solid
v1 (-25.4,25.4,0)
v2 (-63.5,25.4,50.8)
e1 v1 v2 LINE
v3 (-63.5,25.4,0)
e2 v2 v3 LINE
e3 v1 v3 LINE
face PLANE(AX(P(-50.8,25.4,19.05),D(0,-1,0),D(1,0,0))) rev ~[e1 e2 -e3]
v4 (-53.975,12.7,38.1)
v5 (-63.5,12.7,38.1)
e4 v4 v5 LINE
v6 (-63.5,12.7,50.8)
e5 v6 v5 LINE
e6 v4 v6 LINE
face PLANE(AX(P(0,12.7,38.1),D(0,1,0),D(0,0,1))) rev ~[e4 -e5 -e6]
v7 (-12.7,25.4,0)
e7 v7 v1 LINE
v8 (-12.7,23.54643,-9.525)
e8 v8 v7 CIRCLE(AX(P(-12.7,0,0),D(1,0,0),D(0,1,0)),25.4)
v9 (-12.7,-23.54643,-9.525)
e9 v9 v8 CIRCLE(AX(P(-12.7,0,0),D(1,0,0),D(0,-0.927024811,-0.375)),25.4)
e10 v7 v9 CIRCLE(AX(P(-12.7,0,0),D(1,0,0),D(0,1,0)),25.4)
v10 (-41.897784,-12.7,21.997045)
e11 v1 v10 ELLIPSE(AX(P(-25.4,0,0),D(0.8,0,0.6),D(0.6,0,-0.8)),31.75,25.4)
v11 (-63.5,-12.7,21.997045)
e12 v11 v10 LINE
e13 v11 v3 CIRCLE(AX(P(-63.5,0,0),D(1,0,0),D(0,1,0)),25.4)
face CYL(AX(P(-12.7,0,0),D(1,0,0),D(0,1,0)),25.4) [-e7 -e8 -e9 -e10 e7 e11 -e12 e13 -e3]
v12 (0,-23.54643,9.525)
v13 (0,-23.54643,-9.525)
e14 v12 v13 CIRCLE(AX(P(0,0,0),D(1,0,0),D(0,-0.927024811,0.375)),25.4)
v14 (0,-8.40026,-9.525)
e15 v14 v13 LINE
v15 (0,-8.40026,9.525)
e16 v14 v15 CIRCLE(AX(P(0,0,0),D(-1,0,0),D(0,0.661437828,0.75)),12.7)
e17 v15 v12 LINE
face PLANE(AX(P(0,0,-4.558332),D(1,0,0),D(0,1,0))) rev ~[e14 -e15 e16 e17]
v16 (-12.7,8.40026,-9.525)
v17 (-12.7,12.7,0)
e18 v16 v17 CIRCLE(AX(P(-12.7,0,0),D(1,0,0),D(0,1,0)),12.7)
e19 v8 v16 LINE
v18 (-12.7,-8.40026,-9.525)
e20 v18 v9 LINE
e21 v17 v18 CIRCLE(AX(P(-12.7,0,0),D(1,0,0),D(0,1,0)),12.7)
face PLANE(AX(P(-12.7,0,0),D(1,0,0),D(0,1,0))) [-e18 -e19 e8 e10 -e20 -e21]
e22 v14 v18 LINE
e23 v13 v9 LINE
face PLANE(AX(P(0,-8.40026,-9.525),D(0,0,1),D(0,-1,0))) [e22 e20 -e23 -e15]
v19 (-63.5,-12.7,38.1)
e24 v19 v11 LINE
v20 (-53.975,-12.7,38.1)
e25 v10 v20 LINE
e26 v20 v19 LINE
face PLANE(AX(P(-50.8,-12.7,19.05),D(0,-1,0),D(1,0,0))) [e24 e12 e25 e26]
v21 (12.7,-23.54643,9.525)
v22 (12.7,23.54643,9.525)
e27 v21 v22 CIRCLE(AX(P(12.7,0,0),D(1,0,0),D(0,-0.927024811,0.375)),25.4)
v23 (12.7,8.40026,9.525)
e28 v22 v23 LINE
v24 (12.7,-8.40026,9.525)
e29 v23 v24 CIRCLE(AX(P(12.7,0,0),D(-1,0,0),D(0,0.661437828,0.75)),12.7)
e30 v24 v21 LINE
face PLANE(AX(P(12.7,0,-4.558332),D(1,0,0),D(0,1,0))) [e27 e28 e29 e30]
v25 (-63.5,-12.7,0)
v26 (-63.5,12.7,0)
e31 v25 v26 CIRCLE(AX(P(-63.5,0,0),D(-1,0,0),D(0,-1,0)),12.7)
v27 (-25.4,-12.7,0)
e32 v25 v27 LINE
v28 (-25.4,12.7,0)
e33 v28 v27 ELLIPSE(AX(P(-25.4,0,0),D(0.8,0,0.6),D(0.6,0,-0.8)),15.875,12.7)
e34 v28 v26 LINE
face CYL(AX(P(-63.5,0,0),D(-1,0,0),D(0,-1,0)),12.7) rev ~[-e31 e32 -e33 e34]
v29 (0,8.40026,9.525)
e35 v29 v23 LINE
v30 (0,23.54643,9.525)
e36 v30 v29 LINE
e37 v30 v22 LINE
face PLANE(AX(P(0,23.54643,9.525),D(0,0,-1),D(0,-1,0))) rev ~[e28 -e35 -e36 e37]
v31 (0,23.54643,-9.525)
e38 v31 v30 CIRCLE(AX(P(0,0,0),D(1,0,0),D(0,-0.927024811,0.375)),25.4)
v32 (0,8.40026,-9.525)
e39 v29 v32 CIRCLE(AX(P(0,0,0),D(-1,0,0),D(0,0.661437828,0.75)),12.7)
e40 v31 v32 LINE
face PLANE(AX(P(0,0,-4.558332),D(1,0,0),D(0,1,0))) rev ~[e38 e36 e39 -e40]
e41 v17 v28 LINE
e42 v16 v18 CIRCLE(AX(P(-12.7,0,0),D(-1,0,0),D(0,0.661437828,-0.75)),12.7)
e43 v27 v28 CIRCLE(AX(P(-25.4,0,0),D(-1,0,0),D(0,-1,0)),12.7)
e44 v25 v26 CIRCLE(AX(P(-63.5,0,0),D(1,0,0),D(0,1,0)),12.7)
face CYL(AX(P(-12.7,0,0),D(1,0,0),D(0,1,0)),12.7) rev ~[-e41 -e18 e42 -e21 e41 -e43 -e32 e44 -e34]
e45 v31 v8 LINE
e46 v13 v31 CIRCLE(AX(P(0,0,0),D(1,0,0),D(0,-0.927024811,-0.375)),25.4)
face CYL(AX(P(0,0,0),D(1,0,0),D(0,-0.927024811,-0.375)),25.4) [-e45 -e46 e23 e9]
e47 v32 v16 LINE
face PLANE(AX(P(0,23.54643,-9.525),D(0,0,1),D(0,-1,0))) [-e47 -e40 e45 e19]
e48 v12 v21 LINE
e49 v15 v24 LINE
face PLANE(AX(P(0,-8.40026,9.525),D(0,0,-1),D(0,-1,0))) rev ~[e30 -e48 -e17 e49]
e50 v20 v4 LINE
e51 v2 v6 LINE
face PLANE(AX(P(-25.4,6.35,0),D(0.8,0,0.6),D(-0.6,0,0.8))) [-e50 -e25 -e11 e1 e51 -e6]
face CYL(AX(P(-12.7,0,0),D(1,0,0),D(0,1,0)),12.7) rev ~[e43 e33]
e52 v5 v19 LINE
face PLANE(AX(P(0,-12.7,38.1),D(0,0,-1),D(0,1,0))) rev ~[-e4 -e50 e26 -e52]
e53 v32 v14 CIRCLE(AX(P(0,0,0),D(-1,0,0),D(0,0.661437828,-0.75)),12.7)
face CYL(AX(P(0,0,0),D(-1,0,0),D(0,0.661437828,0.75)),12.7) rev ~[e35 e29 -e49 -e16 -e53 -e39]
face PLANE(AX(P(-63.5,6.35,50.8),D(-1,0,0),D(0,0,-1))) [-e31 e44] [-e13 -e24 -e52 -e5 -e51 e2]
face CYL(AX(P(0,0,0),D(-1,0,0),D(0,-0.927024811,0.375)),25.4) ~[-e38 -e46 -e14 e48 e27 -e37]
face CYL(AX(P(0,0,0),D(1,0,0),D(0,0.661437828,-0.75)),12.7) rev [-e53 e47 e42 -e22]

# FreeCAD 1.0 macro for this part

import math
import FreeCAD as App
import Part
import Sketcher

V = App.Vector
Q = App.Units.Quantity


def add_polygon(sketch, points):
    """Adds a closed chain of lines whose ends are joined by coincident constraints."""
    first, n = sketch.GeometryCount, len(points)
    for a, b in zip(points, points[1:] + points[:1]):
        sketch.addGeometry(Part.LineSegment(App.Vector(*a, 0), App.Vector(*b, 0)), False)
    for i in range(n):
        sketch.addConstraint(Sketcher.Constraint("Coincident", first + i, 2, first + (i + 1) % n, 1))

doc = App.newDocument("Part")
body = doc.addObject("PartDesign::Body", "Body")

# Sketch on YZ plane
sketch1 = body.newObject("Sketcher::SketchObject", "Sketch")
sketch1.AttachmentSupport = (doc.getObject("YZ_Plane"), [""])
sketch1.MapMode = "FlatFace"
sketch1.addGeometry(Part.ArcOfCircle(Part.Circle(V(0, 0, 0), V(0, 0, 1), 12.7), math.radians(131.409622), math.radians(408.590378)), False)
sketch1.addGeometry(Part.LineSegment(V(-8.40026, 9.525, 0), V(-23.54643, 9.525, 0)), False)
sketch1.addGeometry(Part.ArcOfCircle(Part.Circle(V(0, 0, 0), V(0, 0, 1), 25.4), math.radians(157.975687), math.radians(382.024313)), False)
sketch1.addGeometry(Part.LineSegment(V(23.54643, 9.525, 0), V(8.40026, 9.525, 0)), False)
sketch1.addConstraint(Sketcher.Constraint("Coincident", 0, 1, 1, 1))
sketch1.addConstraint(Sketcher.Constraint("Coincident", 1, 2, 2, 1))
sketch1.addConstraint(Sketcher.Constraint("Coincident", 2, 2, 3, 1))
sketch1.addConstraint(Sketcher.Constraint("Coincident", 3, 2, 0, 2))
sketch1.addConstraint(Sketcher.Constraint("Horizontal", 1))
sketch1.addConstraint(Sketcher.Constraint("Horizontal", 3))
sketch1.addConstraint(Sketcher.Constraint("Coincident", 0, 3, -1, 1))
sketch1.addConstraint(Sketcher.Constraint("Coincident", 2, 3, -1, 1))
sketch1.addConstraint(Sketcher.Constraint("Horizontal", 1, 2, 2, 2))
sketch1.addConstraint(Sketcher.Constraint("Radius", 2, Q("1 in")))
sketch1.addConstraint(Sketcher.Constraint("Radius", 0, Q("0.5 in")))
sketch1.addConstraint(Sketcher.Constraint("DistanceY", -1, 1, 0, 1, Q("0.375 in")))
pad1 = body.newObject("PartDesign::Pad", "Pad")
pad1.Profile = sketch1
pad1.Length = Q("0.5 in")
body2 = doc.addObject("PartDesign::Body", "Body001")

# Sketch on YZ plane
sketch2 = body2.newObject("Sketcher::SketchObject", "Sketch001")
sketch2.AttachmentSupport = (doc.getObject("YZ_Plane001"), [""])
sketch2.MapMode = "FlatFace"
sketch2.AttachmentOffset = App.Placement(V(0, 0, -0.5 * 25.4), App.Rotation())
sketch2.addGeometry(Part.Circle(V(0, 0, 0), V(0, 0, 1), 25.4), False)
sketch2.addGeometry(Part.Circle(V(0, 0, 0), V(0, 0, 1), 12.7), False)
sketch2.addConstraint(Sketcher.Constraint("Coincident", 0, 3, -1, 1))
sketch2.addConstraint(Sketcher.Constraint("Coincident", 1, 3, -1, 1))
sketch2.addConstraint(Sketcher.Constraint("Diameter", 0, Q("2 in")))
sketch2.addConstraint(Sketcher.Constraint("Diameter", 1, Q("1 in")))
pad2 = body2.newObject("PartDesign::Pad", "Pad001")
pad2.Profile = sketch2
pad2.Length = Q("2 in")
pad2.Reversed = True
body.AllowCompound = True
doc.recompute()

boolean = body.newObject("PartDesign::Boolean", "Boolean")
boolean.Type = "Fuse"
boolean.addObjects([body2])

# Sketch on YZ plane
sketch3 = body.newObject("Sketcher::SketchObject", "Sketch002")
sketch3.AttachmentSupport = (doc.getObject("YZ_Plane"), [""])
sketch3.MapMode = "FlatFace"
sketch3.addGeometry(Part.LineSegment(V(-8.40026, -9.525, 0), V(-23.54643, -9.525, 0)), False)
sketch3.addGeometry(Part.ArcOfCircle(Part.Circle(V(0, 0, 0), V(0, 0, 1), 25.4), math.radians(-157.975687), math.radians(-22.024313)), False)
sketch3.addGeometry(Part.LineSegment(V(23.54643, -9.525, 0), V(8.40026, -9.525, 0)), False)
sketch3.addGeometry(Part.ArcOfCircle(Part.Circle(V(0, 0, 0), V(0, 0, 1), 12.7), math.radians(-131.409622), math.radians(-48.590378)), False)
sketch3.addConstraint(Sketcher.Constraint("Coincident", 0, 2, 1, 1))
sketch3.addConstraint(Sketcher.Constraint("Coincident", 1, 2, 2, 1))
sketch3.addConstraint(Sketcher.Constraint("Coincident", 2, 2, 3, 2))
sketch3.addConstraint(Sketcher.Constraint("Coincident", 3, 1, 0, 1))
sketch3.addConstraint(Sketcher.Constraint("Horizontal", 0))
sketch3.addConstraint(Sketcher.Constraint("Horizontal", 2))
sketch3.addConstraint(Sketcher.Constraint("Coincident", 1, 3, -1, 1))
sketch3.addConstraint(Sketcher.Constraint("Coincident", 3, 3, -1, 1))
sketch3.addConstraint(Sketcher.Constraint("Horizontal", 0, 2, 1, 2))
sketch3.addConstraint(Sketcher.Constraint("Radius", 1, Q("1 in")))
sketch3.addConstraint(Sketcher.Constraint("Radius", 3, Q("0.5 in")))
sketch3.addConstraint(Sketcher.Constraint("DistanceY", 0, 2, -1, 1, Q("0.375 in")))
pad3 = body.newObject("PartDesign::Pad", "Pad002")
pad3.Profile = sketch3
pad3.Length = Q("0.5 in")
pad3.Reversed = True

# Sketch on XZ plane
sketch4 = body.newObject("Sketcher::SketchObject", "Sketch003")
sketch4.AttachmentSupport = (doc.getObject("XZ_Plane"), [""])
sketch4.MapMode = "FlatFace"
sketch4.AttachmentOffset = App.Placement(V(0, 0, -0.25 * 25.4), App.Rotation())
add_polygon(sketch4, [(-25.4, 0), (-63.5, 50.8), (-63.5, 0)])  # lines 0-2
sketch4.addConstraint(Sketcher.Constraint("Vertical", 1))
sketch4.addConstraint(Sketcher.Constraint("Horizontal", 2))
sketch4.addConstraint(Sketcher.Constraint("PointOnObject", 1, 2, -1))
sketch4.addConstraint(Sketcher.Constraint("DistanceY", 1, 2, 1, 1, Q("2 in")))
sketch4.addConstraint(Sketcher.Constraint("DistanceX", 2, 1, 2, 2, Q("1.5 in")))
sketch4.addConstraint(Sketcher.Constraint("DistanceX", 2, 2, -1, 1, Q("1 in")))
pad4 = body.newObject("PartDesign::Pad", "Pad003")
pad4.Profile = sketch4
pad4.Length = Q("1.5 in")
pad4.Midplane = True

# Sketch on YZ plane
sketch5 = body.newObject("Sketcher::SketchObject", "Sketch004")
sketch5.AttachmentSupport = (doc.getObject("YZ_Plane"), [""])
sketch5.MapMode = "FlatFace"
add_polygon(sketch5, [(-12.7, 50.8), (-12.7, 38.1), (12.7, 38.1), (12.7, 50.8)])  # lines 0-3
sketch5.addConstraint(Sketcher.Constraint("Vertical", 0))
sketch5.addConstraint(Sketcher.Constraint("Horizontal", 1))
sketch5.addConstraint(Sketcher.Constraint("Vertical", 2))
sketch5.addConstraint(Sketcher.Constraint("Horizontal", 3))
sketch5.addConstraint(Sketcher.Constraint("DistanceX", 1, 1, 1, 2, Q("1 in")))
sketch5.addConstraint(Sketcher.Constraint("DistanceY", 0, 2, 0, 1, Q("0.5 in")))
sketch5.addConstraint(Sketcher.Constraint("DistanceY", -1, 1, 2, 2, Q("2 in")))
sketch5.addConstraint(Sketcher.Constraint("DistanceX", 0, 2, -1, 1, Q("0.5 in")))
pocket1 = body.newObject("PartDesign::Pocket", "Pocket")
pocket1.Profile = sketch5
pocket1.Type = "ThroughAll"

# Sketch on YZ plane
sketch6 = body.newObject("Sketcher::SketchObject", "Sketch005")
sketch6.AttachmentSupport = (doc.getObject("YZ_Plane"), [""])
sketch6.MapMode = "FlatFace"
sketch6.AttachmentOffset = App.Placement(V(0, 0, -2.5 * 25.4), App.Rotation())
sketch6.addGeometry(Part.LineSegment(V(12.7, 0, 0), V(-12.7, 0, 0)), False)
sketch6.addGeometry(Part.ArcOfCircle(Part.Circle(V(0, 0, 0), V(0, 0, 1), 12.7), math.radians(0), math.radians(180)), False)
sketch6.addConstraint(Sketcher.Constraint("Coincident", 0, 1, 1, 1))
sketch6.addConstraint(Sketcher.Constraint("Coincident", 1, 2, 0, 2))
sketch6.addConstraint(Sketcher.Constraint("Horizontal", 0))
sketch6.addConstraint(Sketcher.Constraint("Coincident", 1, 3, -1, 1))
sketch6.addConstraint(Sketcher.Constraint("PointOnObject", 0, 1, -1))
sketch6.addConstraint(Sketcher.Constraint("Radius", 1, Q("0.5 in")))
pocket2 = body.newObject("PartDesign::Pocket", "Pocket001")
pocket2.Profile = sketch6
pocket2.Length = Q("1.5 in")
pocket2.Reversed = True

doc.recompute()
